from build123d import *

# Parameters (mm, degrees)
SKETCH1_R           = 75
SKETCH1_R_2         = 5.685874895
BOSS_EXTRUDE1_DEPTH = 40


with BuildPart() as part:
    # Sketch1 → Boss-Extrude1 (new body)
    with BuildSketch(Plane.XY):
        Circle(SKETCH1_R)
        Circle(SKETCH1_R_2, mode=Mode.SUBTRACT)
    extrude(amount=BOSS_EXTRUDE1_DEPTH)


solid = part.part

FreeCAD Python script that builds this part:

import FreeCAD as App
import Part
import Sketcher

doc = App.newDocument("Part")
params = doc.addObject("Spreadsheet::Sheet", "Params")
for row, (alias, value) in enumerate([
    ("sketch1_diameter", "150 mm"),
    ("pad1_length", "40 mm"),
], start=1):
    params.set(f"A{row}", alias)
    params.set(f"B{row}", "=" + value)
    params.setAlias(f"B{row}", alias)

body = doc.addObject("PartDesign::Body", "Body")

sketch1 = body.newObject("Sketcher::SketchObject", "Sketch")
sketch1.AttachmentSupport = (doc.getObject("XY_Plane"), [""])
sketch1.MapMode = "FlatFace"
sketch1.addGeometry([
    Part.Circle(App.Vector(0, 0, 0), App.Vector(0, 0, 1), 75),
    Part.Circle(App.Vector(0, 0, 0), App.Vector(0, 0, 1), 6),
], False)
sketch1.addConstraint([
    Sketcher.Constraint("Coincident", 0, 3, -1, 1),
    Sketcher.Constraint("Coincident", 1, 3, -1, 1),
    Sketcher.Constraint("Diameter", 0, 150.0),
    Sketcher.Constraint("Diameter", 1, 11.37175),
])
sketch1.setExpression("Constraints[2]", "Params.sketch1_diameter")
pad1 = body.newObject("PartDesign::Pad", "Pad")
pad1.Profile = sketch1
pad1.setExpression("Length", "Params.pad1_length")

doc.recompute()
